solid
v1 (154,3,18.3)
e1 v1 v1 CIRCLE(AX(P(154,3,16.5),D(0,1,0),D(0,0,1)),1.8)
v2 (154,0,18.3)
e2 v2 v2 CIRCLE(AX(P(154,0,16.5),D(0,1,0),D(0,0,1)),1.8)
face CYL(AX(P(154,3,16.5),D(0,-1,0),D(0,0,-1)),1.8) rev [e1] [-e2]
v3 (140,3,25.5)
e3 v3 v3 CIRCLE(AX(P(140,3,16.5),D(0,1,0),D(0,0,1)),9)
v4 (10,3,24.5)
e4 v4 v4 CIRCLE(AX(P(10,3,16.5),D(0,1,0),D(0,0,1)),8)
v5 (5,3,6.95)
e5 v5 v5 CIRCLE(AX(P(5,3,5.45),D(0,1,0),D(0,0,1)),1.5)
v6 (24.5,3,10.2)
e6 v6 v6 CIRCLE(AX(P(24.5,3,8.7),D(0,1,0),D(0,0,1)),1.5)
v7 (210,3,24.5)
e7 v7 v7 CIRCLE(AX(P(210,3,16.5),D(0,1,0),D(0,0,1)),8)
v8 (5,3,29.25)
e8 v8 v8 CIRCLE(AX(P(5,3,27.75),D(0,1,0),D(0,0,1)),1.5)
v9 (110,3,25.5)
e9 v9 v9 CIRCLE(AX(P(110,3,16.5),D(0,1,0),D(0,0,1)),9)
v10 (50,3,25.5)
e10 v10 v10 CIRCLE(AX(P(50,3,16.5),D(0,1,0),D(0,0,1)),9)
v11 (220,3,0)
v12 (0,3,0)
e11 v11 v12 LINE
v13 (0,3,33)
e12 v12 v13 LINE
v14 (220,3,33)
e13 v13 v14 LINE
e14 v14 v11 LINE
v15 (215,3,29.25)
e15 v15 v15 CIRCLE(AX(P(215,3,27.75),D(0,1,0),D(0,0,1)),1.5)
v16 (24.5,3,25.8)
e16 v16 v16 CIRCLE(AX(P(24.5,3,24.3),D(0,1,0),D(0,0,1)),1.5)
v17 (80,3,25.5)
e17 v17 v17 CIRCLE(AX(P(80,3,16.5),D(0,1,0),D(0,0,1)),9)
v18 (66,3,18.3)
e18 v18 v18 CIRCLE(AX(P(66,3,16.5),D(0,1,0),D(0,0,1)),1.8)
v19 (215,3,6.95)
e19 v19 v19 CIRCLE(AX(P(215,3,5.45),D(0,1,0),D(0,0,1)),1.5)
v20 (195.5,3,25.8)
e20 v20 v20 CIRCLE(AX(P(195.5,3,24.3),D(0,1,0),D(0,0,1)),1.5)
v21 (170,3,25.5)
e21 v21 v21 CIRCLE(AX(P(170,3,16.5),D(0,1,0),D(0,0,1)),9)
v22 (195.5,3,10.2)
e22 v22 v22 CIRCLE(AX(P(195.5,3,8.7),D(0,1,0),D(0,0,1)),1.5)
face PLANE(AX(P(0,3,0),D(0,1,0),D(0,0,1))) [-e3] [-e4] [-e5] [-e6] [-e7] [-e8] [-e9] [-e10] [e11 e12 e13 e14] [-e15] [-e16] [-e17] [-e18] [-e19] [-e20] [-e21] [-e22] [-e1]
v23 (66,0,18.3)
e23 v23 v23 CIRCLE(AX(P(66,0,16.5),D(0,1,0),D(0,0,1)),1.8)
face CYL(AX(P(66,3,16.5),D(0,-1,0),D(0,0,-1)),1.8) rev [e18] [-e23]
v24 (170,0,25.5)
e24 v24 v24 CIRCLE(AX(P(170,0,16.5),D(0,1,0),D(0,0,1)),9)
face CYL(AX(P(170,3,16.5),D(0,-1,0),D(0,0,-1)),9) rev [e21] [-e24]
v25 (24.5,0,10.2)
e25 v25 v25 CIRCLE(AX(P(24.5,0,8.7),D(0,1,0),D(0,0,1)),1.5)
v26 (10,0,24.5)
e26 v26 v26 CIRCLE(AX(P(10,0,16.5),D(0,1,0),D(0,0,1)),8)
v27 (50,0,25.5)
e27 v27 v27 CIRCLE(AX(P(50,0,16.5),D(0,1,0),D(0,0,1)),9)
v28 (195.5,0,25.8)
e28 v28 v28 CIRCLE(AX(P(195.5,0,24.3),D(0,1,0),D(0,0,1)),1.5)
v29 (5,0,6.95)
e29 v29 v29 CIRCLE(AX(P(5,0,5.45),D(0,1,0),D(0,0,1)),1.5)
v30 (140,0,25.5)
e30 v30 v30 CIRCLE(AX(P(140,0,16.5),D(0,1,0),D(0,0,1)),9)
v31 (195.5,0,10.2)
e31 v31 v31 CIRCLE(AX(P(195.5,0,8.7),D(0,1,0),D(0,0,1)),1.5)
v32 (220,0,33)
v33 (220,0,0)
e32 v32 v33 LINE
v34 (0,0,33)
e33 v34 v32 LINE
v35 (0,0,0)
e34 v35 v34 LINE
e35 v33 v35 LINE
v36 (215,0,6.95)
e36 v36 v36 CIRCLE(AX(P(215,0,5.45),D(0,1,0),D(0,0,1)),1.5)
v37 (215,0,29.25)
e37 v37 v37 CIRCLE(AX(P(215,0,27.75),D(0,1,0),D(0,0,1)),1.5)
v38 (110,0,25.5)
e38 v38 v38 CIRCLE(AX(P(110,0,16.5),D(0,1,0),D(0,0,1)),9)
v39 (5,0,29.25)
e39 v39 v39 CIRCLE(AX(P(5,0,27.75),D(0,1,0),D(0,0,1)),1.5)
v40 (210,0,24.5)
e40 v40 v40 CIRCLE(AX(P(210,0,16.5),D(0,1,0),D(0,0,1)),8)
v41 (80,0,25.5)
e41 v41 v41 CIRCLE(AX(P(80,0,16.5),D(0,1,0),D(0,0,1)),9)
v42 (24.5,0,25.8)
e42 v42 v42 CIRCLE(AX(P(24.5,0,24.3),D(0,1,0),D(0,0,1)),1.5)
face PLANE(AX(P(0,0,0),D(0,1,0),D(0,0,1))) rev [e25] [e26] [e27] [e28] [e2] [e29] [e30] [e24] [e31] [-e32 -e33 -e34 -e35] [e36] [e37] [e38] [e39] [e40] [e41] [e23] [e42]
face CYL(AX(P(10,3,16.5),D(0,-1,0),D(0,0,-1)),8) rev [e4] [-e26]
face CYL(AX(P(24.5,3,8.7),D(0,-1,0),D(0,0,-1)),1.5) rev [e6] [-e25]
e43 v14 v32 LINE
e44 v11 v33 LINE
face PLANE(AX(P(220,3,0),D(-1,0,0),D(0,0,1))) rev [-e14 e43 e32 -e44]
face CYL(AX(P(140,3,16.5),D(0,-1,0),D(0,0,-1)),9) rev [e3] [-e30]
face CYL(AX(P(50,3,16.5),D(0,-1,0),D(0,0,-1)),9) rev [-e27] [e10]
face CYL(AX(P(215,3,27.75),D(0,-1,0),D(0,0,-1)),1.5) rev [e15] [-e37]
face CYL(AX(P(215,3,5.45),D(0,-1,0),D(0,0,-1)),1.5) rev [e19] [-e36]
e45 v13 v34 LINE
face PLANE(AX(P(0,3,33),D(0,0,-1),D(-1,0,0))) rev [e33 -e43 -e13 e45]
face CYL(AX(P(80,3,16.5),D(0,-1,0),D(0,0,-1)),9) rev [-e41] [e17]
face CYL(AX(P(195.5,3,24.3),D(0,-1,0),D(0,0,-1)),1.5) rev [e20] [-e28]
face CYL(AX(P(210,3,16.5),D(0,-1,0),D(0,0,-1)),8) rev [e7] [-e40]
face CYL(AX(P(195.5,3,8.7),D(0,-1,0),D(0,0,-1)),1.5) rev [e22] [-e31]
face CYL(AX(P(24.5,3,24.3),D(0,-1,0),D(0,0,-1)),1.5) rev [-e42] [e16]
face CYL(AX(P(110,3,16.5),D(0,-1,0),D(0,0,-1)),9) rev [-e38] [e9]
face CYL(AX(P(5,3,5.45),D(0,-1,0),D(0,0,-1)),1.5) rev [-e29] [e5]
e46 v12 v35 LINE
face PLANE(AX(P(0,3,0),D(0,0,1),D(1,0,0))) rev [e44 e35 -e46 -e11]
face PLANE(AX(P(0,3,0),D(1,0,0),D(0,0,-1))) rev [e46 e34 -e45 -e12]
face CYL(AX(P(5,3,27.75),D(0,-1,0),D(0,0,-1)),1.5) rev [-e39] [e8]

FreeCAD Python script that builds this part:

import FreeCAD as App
import Part
import Sketcher
Q = App.Units.Quantity

doc = App.newDocument("Part")
body = doc.addObject("PartDesign::Body", "Body")

sketch1 = doc.addObject("Sketcher::SketchObject", "Sketch")
body.addObject(sketch1)
sketch1.AttachmentSupport = (doc.XZ_Plane, [""])
sketch1.MapMode = "FlatFace"
sketch1.addGeometry(Part.LineSegment(App.Vector(0, 0, 0), App.Vector(0, 33, 0)), False)
sketch1.addGeometry(Part.LineSegment(App.Vector(0, 33, 0), App.Vector(220, 33, 0)), False)
sketch1.addGeometry(Part.LineSegment(App.Vector(220, 33, 0), App.Vector(220, 0, 0)), False)
sketch1.addGeometry(Part.LineSegment(App.Vector(220, 0, 0), App.Vector(0, 0, 0)), False)
sketch1.addGeometry(Part.Circle(App.Vector(5, 27.75, 0), App.Vector(0, 0, 1), 1.5), False)
sketch1.addGeometry(Part.Circle(App.Vector(24.5, 24.3, 0), App.Vector(0, 0, 1), 1.5), False)
sketch1.addGeometry(Part.Circle(App.Vector(215, 27.75, 0), App.Vector(0, 0, 1), 1.5), False)
sketch1.addGeometry(Part.Circle(App.Vector(195.5, 24.3, 0), App.Vector(0, 0, 1), 1.5), False)
sketch1.addGeometry(Part.Circle(App.Vector(10, 16.5, 0), App.Vector(0, 0, 1), 8), False)
sketch1.addGeometry(Part.Circle(App.Vector(50, 16.5, 0), App.Vector(0, 0, 1), 9), False)
sketch1.addGeometry(Part.Circle(App.Vector(66, 16.5, 0), App.Vector(0, 0, 1), 1.8), False)
sketch1.addGeometry(Part.Circle(App.Vector(80, 16.5, 0), App.Vector(0, 0, 1), 9), False)
sketch1.addGeometry(Part.Circle(App.Vector(24.5, 8.7, 0), App.Vector(0, 0, 1), 1.5), False)
sketch1.addGeometry(Part.Circle(App.Vector(5, 5.45, 0), App.Vector(0, 0, 1), 1.5), False)
sketch1.addGeometry(Part.Circle(App.Vector(110, 16.5, 0), App.Vector(0, 0, 1), 9), False)
sketch1.addGeometry(Part.Circle(App.Vector(140, 16.5, 0), App.Vector(0, 0, 1), 9), False)
sketch1.addGeometry(Part.Circle(App.Vector(154, 16.5, 0), App.Vector(0, 0, 1), 1.8), False)
sketch1.addGeometry(Part.Circle(App.Vector(170, 16.5, 0), App.Vector(0, 0, 1), 9), False)
sketch1.addGeometry(Part.Circle(App.Vector(210, 16.5, 0), App.Vector(0, 0, 1), 8), False)
sketch1.addGeometry(Part.Circle(App.Vector(195.5, 8.7, 0), App.Vector(0, 0, 1), 1.5), False)
sketch1.addGeometry(Part.Circle(App.Vector(215, 5.45, 0), App.Vector(0, 0, 1), 1.5), False)
sketch1.addConstraint(Sketcher.Constraint("Coincident", 0, 2, 1, 1))
sketch1.addConstraint(Sketcher.Constraint("Coincident", 1, 2, 2, 1))
sketch1.addConstraint(Sketcher.Constraint("Coincident", 2, 2, 3, 1))
sketch1.addConstraint(Sketcher.Constraint("Coincident", 3, 2, 0, 1))
sketch1.addConstraint(Sketcher.Constraint("Vertical", 0))
sketch1.addConstraint(Sketcher.Constraint("Horizontal", 1))
sketch1.addConstraint(Sketcher.Constraint("Vertical", 2))
sketch1.addConstraint(Sketcher.Constraint("Horizontal", 3))
sketch1.addConstraint(Sketcher.Constraint("Coincident", 3, 2, -1, 1))
sketch1.addConstraint(Sketcher.Constraint("Equal", 4, 5))
sketch1.addConstraint(Sketcher.Constraint("Equal", 5, 6))
sketch1.addConstraint(Sketcher.Constraint("Equal", 6, 7))
sketch1.addConstraint(Sketcher.Constraint("Equal", 9, 11))
sketch1.addConstraint(Sketcher.Constraint("Equal", 7, 12))
sketch1.addConstraint(Sketcher.Constraint("Equal", 12, 13))
sketch1.addConstraint(Sketcher.Constraint("Equal", 11, 14))
sketch1.addConstraint(Sketcher.Constraint("Equal", 14, 15))
sketch1.addConstraint(Sketcher.Constraint("Equal", 10, 16))
sketch1.addConstraint(Sketcher.Constraint("Equal", 15, 17))
sketch1.addConstraint(Sketcher.Constraint("Equal", 8, 18))
sketch1.addConstraint(Sketcher.Constraint("Equal", 13, 19))
sketch1.addConstraint(Sketcher.Constraint("Equal", 19, 20))
sketch1.addConstraint(Sketcher.Constraint("Horizontal", 4, 3, 6, 3))
sketch1.addConstraint(Sketcher.Constraint("Horizontal", 5, 3, 7, 3))
sketch1.addConstraint(Sketcher.Constraint("Horizontal", 8, 3, 9, 3))
sketch1.addConstraint(Sketcher.Constraint("Horizontal", 9, 3, 10, 3))
sketch1.addConstraint(Sketcher.Constraint("Horizontal", 10, 3, 11, 3))
sketch1.addConstraint(Sketcher.Constraint("Horizontal", 11, 3, 14, 3))
sketch1.addConstraint(Sketcher.Constraint("Horizontal", 14, 3, 15, 3))
sketch1.addConstraint(Sketcher.Constraint("Horizontal", 15, 3, 16, 3))
sketch1.addConstraint(Sketcher.Constraint("Horizontal", 16, 3, 17, 3))
sketch1.addConstraint(Sketcher.Constraint("Horizontal", 17, 3, 18, 3))
sketch1.addConstraint(Sketcher.Constraint("Horizontal", 12, 3, 19, 3))
sketch1.addConstraint(Sketcher.Constraint("Horizontal", 13, 3, 20, 3))
sketch1.addConstraint(Sketcher.Constraint("Vertical", 5, 3, 12, 3))
sketch1.addConstraint(Sketcher.Constraint("Vertical", 4, 3, 13, 3))
sketch1.addConstraint(Sketcher.Constraint("Vertical", 7, 3, 19, 3))
sketch1.addConstraint(Sketcher.Constraint("Vertical", 6, 3, 20, 3))
sketch1.addConstraint(Sketcher.Constraint("Diameter", 4, Q("3 mm")))
sketch1.addConstraint(Sketcher.Constraint("Diameter", 8, Q("16 mm")))
sketch1.addConstraint(Sketcher.Constraint("Diameter", 9, Q("18 mm")))
sketch1.addConstraint(Sketcher.Constraint("Diameter", 10, Q("3.6 mm")))
sketch1.addConstraint(Sketcher.Constraint("DistanceX", 1, 1, 1, 2, Q("220 mm")))
sketch1.addConstraint(Sketcher.Constraint("DistanceY", 0, 1, 0, 2, Q("33 mm")))
sketch1.addConstraint(Sketcher.Constraint("DistanceX", -1, 1, 4, 3, Q("5 mm")))
sketch1.addConstraint(Sketcher.Constraint("DistanceX", -1, 1, 6, 3, Q("215 mm")))
sketch1.addConstraint(Sketcher.Constraint("DistanceX", -1, 1, 8, 3, Q("10 mm")))
sketch1.addConstraint(Sketcher.Constraint("DistanceX", -1, 1, 9, 3, Q("50 mm")))
sketch1.addConstraint(Sketcher.Constraint("DistanceX", -1, 1, 10, 3, Q("66 mm")))
sketch1.addConstraint(Sketcher.Constraint("DistanceX", -1, 1, 11, 3, Q("80 mm")))
sketch1.addConstraint(Sketcher.Constraint("DistanceX", -1, 1, 14, 3, Q("110 mm")))
sketch1.addConstraint(Sketcher.Constraint("DistanceX", -1, 1, 15, 3, Q("140 mm")))
sketch1.addConstraint(Sketcher.Constraint("DistanceX", -1, 1, 16, 3, Q("154 mm")))
sketch1.addConstraint(Sketcher.Constraint("DistanceX", -1, 1, 17, 3, Q("170 mm")))
sketch1.addConstraint(Sketcher.Constraint("DistanceX", -1, 1, 18, 3, Q("210 mm")))
sketch1.addConstraint(Sketcher.Constraint("DistanceX", 5, 3, 7, 3, Q("171 mm")))
sketch1.addConstraint(Sketcher.Constraint("DistanceX", -1, 1, 5, 3, Q("24.5 mm")))
sketch1.addConstraint(Sketcher.Constraint("DistanceY", -1, 1, 5, 3, Q("24.3 mm")))
sketch1.addConstraint(Sketcher.Constraint("DistanceY", -1, 1, 8, 3, Q("16.5 mm")))
sketch1.addConstraint(Sketcher.Constraint("DistanceY", -1, 1, 12, 3, Q("8.7 mm")))
sketch1.addConstraint(Sketcher.Constraint("DistanceY", 13, 3, 4, 3, Q("22.3 mm")))
sketch1.addConstraint(Sketcher.Constraint("DistanceY", -1, 1, 4, 3, Q("27.75 mm")))
pad1 = doc.addObject("PartDesign::Pad", "Pad")
body.addObject(pad1)
pad1.Profile = sketch1
pad1.Length = 3
pad1.Reversed = True

doc.recompute()
